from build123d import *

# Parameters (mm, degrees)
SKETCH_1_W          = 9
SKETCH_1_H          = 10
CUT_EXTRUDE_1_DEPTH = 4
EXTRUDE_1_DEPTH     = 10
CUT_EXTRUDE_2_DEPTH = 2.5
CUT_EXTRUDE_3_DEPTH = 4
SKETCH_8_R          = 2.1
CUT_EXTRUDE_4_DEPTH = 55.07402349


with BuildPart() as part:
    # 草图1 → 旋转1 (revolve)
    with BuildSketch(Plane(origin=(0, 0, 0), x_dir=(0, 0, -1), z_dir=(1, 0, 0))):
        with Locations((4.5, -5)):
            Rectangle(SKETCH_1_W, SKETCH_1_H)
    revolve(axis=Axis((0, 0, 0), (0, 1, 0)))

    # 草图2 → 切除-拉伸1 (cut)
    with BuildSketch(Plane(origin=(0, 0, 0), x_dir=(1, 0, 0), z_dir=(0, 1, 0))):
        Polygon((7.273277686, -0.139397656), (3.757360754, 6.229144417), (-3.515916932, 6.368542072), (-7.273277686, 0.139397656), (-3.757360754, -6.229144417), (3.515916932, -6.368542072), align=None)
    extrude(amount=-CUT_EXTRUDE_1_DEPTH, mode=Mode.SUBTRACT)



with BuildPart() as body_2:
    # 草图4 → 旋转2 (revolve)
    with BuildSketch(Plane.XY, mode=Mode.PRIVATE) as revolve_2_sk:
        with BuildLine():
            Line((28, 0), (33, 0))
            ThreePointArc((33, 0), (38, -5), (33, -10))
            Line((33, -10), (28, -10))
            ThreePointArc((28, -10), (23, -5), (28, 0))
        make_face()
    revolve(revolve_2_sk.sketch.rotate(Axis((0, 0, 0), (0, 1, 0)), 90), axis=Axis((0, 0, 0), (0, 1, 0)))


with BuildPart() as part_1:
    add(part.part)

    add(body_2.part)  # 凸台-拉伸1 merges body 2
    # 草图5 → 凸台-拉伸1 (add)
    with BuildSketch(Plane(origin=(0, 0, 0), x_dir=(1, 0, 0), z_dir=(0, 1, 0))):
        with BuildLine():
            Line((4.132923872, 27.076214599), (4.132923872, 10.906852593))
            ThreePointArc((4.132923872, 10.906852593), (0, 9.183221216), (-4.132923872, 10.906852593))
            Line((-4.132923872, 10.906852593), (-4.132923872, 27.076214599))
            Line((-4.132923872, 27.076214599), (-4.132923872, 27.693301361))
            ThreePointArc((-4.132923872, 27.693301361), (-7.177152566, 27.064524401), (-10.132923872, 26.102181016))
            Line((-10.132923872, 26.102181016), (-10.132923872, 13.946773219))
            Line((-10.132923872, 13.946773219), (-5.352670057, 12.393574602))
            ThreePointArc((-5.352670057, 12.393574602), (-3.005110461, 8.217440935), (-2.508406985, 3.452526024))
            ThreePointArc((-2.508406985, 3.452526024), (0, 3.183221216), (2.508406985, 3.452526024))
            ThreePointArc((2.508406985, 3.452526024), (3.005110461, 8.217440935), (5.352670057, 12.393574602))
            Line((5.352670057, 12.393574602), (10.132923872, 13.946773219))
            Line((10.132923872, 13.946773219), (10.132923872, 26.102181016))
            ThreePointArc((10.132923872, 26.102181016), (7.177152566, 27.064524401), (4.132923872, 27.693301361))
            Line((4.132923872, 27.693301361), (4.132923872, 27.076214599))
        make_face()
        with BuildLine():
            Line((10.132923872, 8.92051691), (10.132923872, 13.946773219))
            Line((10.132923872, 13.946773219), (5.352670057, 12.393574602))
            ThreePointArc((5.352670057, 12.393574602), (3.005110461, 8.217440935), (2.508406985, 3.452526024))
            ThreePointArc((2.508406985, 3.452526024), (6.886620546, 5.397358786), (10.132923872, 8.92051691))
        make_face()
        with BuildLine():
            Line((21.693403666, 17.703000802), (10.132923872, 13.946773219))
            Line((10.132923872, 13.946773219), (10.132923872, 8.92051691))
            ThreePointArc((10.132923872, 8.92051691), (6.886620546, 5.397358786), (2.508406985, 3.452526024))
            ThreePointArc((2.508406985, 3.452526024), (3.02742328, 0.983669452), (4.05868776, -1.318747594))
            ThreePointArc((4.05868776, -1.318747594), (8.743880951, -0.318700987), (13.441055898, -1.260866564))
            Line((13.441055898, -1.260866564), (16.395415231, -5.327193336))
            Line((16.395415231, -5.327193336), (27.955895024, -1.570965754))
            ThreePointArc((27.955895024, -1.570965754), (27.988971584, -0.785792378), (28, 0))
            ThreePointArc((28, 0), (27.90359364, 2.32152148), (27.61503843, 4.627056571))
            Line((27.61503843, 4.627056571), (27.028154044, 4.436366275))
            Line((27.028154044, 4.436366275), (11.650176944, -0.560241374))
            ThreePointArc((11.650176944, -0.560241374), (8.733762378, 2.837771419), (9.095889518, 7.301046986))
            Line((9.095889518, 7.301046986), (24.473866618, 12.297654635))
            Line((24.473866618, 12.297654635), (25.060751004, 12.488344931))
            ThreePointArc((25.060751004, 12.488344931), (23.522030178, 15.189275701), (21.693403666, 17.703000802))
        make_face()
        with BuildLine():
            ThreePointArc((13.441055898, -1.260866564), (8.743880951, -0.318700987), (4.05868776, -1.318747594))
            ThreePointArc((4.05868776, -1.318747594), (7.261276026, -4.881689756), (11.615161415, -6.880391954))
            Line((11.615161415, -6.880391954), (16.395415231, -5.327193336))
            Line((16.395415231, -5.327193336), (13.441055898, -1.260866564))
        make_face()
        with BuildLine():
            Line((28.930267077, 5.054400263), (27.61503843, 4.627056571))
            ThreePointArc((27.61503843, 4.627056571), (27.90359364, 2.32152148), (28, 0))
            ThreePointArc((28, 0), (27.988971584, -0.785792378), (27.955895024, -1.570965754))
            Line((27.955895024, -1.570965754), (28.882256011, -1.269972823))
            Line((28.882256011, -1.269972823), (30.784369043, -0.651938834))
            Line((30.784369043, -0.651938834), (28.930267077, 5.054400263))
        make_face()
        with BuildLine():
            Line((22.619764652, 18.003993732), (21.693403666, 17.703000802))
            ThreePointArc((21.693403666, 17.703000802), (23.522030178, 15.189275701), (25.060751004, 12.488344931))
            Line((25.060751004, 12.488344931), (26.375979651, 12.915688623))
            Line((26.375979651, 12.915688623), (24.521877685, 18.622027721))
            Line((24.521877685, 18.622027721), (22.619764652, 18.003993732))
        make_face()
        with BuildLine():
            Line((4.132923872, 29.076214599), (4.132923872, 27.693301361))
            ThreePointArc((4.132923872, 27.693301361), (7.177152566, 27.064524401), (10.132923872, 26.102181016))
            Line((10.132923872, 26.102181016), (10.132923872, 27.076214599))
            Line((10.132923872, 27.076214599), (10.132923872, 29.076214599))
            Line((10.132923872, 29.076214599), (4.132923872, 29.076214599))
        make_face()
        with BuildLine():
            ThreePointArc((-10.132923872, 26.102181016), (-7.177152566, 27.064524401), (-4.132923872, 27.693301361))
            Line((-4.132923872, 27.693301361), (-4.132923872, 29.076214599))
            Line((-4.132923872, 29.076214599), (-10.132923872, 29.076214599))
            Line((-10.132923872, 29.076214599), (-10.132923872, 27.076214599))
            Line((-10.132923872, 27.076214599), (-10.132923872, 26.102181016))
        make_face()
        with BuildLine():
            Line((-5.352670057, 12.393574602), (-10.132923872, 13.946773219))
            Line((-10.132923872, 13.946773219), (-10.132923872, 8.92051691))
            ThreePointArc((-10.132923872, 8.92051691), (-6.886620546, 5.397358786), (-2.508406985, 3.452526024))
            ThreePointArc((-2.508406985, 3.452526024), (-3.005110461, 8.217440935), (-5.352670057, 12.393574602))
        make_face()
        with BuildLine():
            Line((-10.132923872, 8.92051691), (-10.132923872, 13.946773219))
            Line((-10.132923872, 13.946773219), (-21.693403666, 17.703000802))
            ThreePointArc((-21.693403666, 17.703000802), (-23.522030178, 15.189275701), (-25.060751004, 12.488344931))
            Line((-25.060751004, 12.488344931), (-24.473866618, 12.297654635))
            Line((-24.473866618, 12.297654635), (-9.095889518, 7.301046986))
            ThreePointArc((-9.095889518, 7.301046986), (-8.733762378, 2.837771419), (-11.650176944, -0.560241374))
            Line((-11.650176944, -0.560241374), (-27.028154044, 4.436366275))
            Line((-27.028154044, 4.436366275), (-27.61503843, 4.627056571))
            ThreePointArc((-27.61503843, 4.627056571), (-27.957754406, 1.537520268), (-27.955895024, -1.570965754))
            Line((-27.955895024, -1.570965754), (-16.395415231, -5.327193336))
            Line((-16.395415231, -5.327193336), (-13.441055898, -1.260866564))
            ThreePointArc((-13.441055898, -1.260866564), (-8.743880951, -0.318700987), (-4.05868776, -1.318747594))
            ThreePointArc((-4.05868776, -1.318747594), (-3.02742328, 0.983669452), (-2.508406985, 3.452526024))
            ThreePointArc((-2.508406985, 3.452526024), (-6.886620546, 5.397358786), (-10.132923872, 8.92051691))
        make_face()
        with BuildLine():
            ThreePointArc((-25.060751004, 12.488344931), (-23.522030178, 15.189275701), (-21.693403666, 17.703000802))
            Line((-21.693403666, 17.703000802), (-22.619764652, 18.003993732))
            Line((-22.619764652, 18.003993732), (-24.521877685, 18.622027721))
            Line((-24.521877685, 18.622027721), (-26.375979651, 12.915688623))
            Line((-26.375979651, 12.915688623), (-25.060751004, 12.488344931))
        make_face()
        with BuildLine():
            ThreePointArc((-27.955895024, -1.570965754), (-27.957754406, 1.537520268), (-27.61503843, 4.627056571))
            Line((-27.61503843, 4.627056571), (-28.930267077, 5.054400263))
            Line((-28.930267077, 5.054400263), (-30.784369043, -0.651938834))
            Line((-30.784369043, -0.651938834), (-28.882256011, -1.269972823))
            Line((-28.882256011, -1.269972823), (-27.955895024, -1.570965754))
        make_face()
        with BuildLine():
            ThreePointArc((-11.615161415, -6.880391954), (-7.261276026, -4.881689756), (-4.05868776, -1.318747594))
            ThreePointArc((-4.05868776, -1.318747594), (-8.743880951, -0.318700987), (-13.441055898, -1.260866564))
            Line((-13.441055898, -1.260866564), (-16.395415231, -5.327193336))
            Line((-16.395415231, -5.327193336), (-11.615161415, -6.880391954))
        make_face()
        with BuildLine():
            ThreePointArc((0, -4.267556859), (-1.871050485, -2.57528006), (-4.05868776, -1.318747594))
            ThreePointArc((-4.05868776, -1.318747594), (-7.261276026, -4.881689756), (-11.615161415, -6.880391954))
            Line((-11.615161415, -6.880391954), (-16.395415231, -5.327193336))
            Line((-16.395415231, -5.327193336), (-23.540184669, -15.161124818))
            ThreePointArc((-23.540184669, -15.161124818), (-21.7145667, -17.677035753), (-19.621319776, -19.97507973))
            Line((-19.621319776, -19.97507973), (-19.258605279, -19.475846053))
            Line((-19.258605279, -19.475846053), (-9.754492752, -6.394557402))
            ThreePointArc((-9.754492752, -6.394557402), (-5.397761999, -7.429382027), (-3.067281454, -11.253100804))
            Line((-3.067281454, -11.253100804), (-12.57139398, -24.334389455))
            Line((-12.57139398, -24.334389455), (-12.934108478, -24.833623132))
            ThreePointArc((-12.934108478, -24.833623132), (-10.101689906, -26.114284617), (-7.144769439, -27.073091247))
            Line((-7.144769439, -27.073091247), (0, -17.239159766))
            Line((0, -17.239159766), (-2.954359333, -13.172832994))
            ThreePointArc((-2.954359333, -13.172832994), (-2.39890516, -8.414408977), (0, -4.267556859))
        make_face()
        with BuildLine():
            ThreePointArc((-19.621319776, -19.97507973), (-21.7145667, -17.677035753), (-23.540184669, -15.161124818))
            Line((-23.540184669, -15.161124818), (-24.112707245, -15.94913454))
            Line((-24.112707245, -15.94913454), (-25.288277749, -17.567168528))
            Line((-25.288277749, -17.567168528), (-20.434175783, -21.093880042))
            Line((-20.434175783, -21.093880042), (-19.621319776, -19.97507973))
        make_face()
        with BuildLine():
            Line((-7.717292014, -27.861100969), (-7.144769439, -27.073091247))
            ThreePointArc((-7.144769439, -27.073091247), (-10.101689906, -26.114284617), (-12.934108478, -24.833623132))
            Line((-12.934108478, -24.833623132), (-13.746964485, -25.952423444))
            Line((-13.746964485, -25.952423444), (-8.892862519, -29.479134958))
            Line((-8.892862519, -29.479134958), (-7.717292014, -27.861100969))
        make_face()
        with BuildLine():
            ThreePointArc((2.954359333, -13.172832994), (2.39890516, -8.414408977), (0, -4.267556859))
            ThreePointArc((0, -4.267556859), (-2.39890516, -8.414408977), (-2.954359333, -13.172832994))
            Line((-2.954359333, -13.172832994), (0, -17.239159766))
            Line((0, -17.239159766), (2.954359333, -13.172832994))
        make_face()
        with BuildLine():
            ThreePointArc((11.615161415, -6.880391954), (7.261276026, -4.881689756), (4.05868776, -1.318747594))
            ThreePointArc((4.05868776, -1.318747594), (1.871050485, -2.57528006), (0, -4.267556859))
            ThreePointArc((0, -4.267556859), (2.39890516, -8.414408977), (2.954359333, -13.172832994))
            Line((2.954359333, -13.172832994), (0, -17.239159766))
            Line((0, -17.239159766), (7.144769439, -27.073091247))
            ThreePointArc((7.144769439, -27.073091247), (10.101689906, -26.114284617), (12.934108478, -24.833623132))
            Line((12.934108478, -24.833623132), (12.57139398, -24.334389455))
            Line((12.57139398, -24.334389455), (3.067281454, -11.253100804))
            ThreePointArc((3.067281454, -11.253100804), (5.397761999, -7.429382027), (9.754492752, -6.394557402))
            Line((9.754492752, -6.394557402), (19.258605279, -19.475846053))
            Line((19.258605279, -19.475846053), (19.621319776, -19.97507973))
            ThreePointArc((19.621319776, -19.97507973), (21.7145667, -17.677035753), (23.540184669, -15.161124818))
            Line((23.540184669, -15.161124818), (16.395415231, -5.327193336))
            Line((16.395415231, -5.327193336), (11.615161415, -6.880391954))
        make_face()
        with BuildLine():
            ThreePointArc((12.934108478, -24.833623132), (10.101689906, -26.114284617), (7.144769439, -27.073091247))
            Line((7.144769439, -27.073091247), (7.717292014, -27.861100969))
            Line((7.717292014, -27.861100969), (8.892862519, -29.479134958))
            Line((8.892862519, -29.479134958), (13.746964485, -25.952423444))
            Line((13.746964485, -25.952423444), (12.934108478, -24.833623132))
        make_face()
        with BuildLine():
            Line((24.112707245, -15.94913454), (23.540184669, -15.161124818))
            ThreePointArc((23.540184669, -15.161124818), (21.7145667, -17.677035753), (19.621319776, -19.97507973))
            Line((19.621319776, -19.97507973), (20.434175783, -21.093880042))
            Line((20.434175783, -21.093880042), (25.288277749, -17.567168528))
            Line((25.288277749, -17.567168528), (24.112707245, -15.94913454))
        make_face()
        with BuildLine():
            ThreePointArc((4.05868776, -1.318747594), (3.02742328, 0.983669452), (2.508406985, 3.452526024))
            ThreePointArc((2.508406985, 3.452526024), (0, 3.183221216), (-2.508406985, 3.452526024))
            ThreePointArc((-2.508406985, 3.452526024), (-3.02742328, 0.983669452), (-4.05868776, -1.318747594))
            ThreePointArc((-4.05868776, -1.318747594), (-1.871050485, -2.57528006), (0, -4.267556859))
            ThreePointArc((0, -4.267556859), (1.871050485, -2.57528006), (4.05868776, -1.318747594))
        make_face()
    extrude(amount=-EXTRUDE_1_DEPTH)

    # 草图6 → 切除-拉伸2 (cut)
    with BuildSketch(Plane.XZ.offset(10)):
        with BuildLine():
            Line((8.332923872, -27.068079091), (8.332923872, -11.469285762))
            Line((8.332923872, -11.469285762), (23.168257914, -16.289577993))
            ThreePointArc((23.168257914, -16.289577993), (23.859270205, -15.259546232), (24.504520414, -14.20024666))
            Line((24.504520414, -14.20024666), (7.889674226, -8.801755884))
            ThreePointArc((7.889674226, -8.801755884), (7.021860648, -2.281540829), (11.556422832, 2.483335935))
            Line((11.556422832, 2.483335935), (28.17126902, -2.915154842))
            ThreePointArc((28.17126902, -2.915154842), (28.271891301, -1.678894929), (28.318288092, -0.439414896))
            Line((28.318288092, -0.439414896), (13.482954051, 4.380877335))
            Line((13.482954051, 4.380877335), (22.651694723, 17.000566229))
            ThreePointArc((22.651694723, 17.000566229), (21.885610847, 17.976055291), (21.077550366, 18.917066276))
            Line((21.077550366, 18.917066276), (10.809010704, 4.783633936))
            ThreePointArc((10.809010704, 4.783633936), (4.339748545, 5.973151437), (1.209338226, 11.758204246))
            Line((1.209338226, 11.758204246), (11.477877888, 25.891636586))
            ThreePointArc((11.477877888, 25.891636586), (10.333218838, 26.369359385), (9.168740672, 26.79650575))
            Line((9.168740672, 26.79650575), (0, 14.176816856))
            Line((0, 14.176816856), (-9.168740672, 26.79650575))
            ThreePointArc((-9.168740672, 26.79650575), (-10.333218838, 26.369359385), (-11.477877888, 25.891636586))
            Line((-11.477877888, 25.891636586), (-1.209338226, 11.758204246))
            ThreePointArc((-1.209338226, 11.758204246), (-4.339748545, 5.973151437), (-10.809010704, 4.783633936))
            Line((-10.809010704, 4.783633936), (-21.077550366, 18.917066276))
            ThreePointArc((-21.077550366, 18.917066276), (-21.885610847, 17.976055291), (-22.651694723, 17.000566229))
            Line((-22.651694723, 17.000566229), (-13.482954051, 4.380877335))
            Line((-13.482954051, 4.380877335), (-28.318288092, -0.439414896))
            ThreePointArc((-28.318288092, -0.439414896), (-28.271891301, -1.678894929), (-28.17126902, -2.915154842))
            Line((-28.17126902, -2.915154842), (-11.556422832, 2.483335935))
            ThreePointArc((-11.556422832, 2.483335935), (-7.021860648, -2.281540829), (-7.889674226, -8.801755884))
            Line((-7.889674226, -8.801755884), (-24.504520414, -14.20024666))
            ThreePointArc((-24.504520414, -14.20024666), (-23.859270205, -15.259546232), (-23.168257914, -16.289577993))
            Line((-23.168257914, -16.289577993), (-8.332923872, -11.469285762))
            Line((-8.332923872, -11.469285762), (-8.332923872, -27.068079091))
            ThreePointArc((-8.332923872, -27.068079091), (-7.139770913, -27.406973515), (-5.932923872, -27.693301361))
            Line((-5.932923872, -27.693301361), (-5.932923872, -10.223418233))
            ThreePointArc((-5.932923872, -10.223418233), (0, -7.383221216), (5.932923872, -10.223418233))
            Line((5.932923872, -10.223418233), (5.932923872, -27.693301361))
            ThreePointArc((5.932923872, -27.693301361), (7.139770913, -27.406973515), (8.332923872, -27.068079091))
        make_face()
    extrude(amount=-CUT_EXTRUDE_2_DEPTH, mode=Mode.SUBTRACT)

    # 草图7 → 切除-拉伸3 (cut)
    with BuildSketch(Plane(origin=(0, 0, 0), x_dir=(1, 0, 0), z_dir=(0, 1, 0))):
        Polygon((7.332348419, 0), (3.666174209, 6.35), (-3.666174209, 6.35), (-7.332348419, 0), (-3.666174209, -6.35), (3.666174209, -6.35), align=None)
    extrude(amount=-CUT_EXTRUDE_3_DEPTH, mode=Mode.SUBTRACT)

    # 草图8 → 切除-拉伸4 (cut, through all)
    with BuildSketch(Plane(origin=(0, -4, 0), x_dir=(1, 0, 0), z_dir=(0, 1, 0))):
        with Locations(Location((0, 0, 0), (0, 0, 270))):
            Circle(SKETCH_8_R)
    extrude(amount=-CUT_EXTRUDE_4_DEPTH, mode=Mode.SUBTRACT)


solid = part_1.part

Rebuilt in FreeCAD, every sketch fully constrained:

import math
import FreeCAD as App
import Part
import Sketcher
from FreeCAD import Vector
Q = App.Units.Quantity

doc = App.newDocument("Part")
body = doc.addObject("PartDesign::Body", "Body")

sketch1 = body.newObject("Sketcher::SketchObject", "Sketch")
sketch1.AttachmentSupport = (doc.getObject("YZ_Plane"), [""])
sketch1.MapMode = "FlatFace"
sketch1.addGeometry([
    Part.LineSegment(Vector(0, 0, 0), Vector(-10, 0, 0)),
    Part.LineSegment(Vector(-10, 0, 0), Vector(-10, -9, 0)),
    Part.LineSegment(Vector(-10, -9, 0), Vector(0, -9, 0)),
    Part.LineSegment(Vector(0, -9, 0), Vector(0, 0, 0)),
], False)
sketch1.addConstraint([
    Sketcher.Constraint("Coincident", 0, 2, 1, 1),
    Sketcher.Constraint("Coincident", 1, 2, 2, 1),
    Sketcher.Constraint("Coincident", 2, 2, 3, 1),
    Sketcher.Constraint("Coincident", 3, 2, 0, 1),
    Sketcher.Constraint("Horizontal", 0),
    Sketcher.Constraint("Vertical", 1),
    Sketcher.Constraint("Horizontal", 2),
    Sketcher.Constraint("Vertical", 3),
    Sketcher.Constraint("Coincident", 3, 2, -1, 1),
    Sketcher.Constraint("DistanceX", 0, 2, 0, 1, 10.0),
    Sketcher.Constraint("DistanceY", 1, 2, 1, 1, 9.0),
])
revolution = body.newObject("PartDesign::Revolution", "Revolution")
revolution.Profile = sketch1
revolution.ReferenceAxis = (sketch1, ["H_Axis"])
revolution.Angle = 360

sketch2 = body.newObject("Sketcher::SketchObject", "Sketch001")
sketch2.AttachmentSupport = (doc.getObject("XZ_Plane"), [""])
sketch2.MapMode = "FlatFace"
sketch2.addGeometry([
    Part.LineSegment(Vector(7, 0, 0), Vector(4, -6, 0)),
    Part.LineSegment(Vector(4, -6, 0), Vector(-4, -6, 0)),
    Part.LineSegment(Vector(-4, -6, 0), Vector(-7, 0, 0)),
    Part.LineSegment(Vector(-7, 0, 0), Vector(-4, 6, 0)),
    Part.LineSegment(Vector(-4, 6, 0), Vector(4, 6, 0)),
    Part.LineSegment(Vector(4, 6, 0), Vector(7, 0, 0)),
], False)
sketch2.addConstraint([
    Sketcher.Constraint("Coincident", 0, 2, 1, 1),
    Sketcher.Constraint("Coincident", 1, 2, 2, 1),
    Sketcher.Constraint("Coincident", 2, 2, 3, 1),
    Sketcher.Constraint("Coincident", 3, 2, 4, 1),
    Sketcher.Constraint("Coincident", 4, 2, 5, 1),
    Sketcher.Constraint("Coincident", 5, 2, 0, 1),
    Sketcher.Constraint("Symmetric", 0, 2, 3, 2, -1, 1),
    Sketcher.Constraint("Symmetric", 1, 2, 4, 2, -1, 1),
    Sketcher.Constraint("Symmetric", 2, 2, 5, 2, -1, 1),
    Sketcher.Constraint("Equal", 0, 1),
    Sketcher.Constraint("Equal", 1, 2),
    Sketcher.Constraint("DistanceX", -1, 1, 0, 2, 3.757361),
    Sketcher.Constraint("DistanceX", 2, 2, 1, 2, 3.757361),
    Sketcher.Constraint("DistanceX", 2, 2, 0, 2, 11.030638),
    Sketcher.Constraint("DistanceY", 0, 2, 3, 2, 12.458289),
])
pocket1 = body.newObject("PartDesign::Pocket", "Pocket")
pocket1.Profile = sketch2
pocket1.Length = 4
pocket1.Reversed = True
body2 = doc.addObject("PartDesign::Body", "Body001")

sketch3 = body2.newObject("Sketcher::SketchObject", "Sketch002")
sketch3.AttachmentSupport = (doc.getObject("XY_Plane001"), [""])
sketch3.MapMode = "FlatFace"
sketch3.addGeometry([
    Part.LineSegment(Vector(33, 0, 0), Vector(28, 0, 0)),
    Part.ArcOfCircle(Part.Circle(Vector(28, -5, 0), Vector(0, 0, 1), 5), math.radians(90), math.radians(270)),
    Part.LineSegment(Vector(28, -10, 0), Vector(33, -10, 0)),
    Part.ArcOfCircle(Part.Circle(Vector(33, -5, 0), Vector(0, 0, 1), 5), math.radians(-90), math.radians(90)),
], False)
sketch3.addConstraint([
    Sketcher.Constraint("Tangent", 0, 2, 1, 1),
    Sketcher.Constraint("Tangent", 1, 2, 2, 1),
    Sketcher.Constraint("Tangent", 2, 2, 3, 1),
    Sketcher.Constraint("Tangent", 3, 2, 0, 1),
    Sketcher.Constraint("Horizontal", 0),
    Sketcher.Constraint("Horizontal", 2),
    Sketcher.Constraint("PointOnObject", 0, 2, -1),
    Sketcher.Constraint("Radius", 1, 5.0),
    Sketcher.Constraint("DistanceX", 0, 2, 0, 1, 5.0),
    Sketcher.Constraint("DistanceX", -1, 1, 1, 3, 28.0),
])
revolution2 = body2.newObject("PartDesign::Revolution", "Revolution001")
revolution2.Profile = sketch3
revolution2.ReferenceAxis = (sketch3, ["V_Axis"])
revolution2.Angle = 360
body.AllowCompound = True
doc.recompute()

boolean = body.newObject("PartDesign::Boolean", "Boolean")
boolean.Type = "Fuse"
boolean.addObjects([body2])

sketch4 = body.newObject("Sketcher::SketchObject", "Sketch003")
sketch4.AttachmentSupport = (doc.getObject("XZ_Plane"), [""])
sketch4.MapMode = "FlatFace"
sketch4.addGeometry([
    Part.ArcOfCircle(Part.Circle(Vector(0, -15, 0), Vector(0, 0, 1), 5.8), math.radians(45), math.radians(135)),
    Part.LineSegment(Vector(-4.1, -10.9, 0), Vector(-4.1, -29.1, 0)),
    Part.LineSegment(Vector(-4.1, -29.1, 0), Vector(-10.1, -29.1, 0)),
    Part.LineSegment(Vector(-10.1, -29.1, 0), Vector(-10.1, -13.9, 0)),
    Part.LineSegment(Vector(-10.1, -13.9, 0), Vector(-21.7, -17.7, 0)),
    Part.LineSegment(Vector(-21.7, -17.7, 0), Vector(-22.6, -18, 0)),
    Part.LineSegment(Vector(-22.6, -18, 0), Vector(-24.5, -18.6, 0)),
    Part.LineSegment(Vector(-24.5, -18.6, 0), Vector(-26.4, -12.9, 0)),
    Part.LineSegment(Vector(-26.4, -12.9, 0), Vector(-25.1, -12.5, 0)),
    Part.LineSegment(Vector(-25.1, -12.5, 0), Vector(-24.5, -12.3, 0)),
    Part.LineSegment(Vector(-24.5, -12.3, 0), Vector(-9.1, -7.3, 0)),
    Part.ArcOfCircle(Part.Circle(Vector(-14.3, -4.6, 0), Vector(0, 0, 1), 5.8), math.radians(-27), math.radians(63)),
    Part.LineSegment(Vector(-11.7, 0.6, 0), Vector(-27, -4.4, 0)),
    Part.LineSegment(Vector(-27, -4.4, 0), Vector(-27.6, -4.6, 0)),
    Part.LineSegment(Vector(-27.6, -4.6, 0), Vector(-28.9, -5.1, 0)),
    Part.LineSegment(Vector(-28.9, -5.1, 0), Vector(-30.8, 0.7, 0)),
    Part.LineSegment(Vector(-30.8, 0.7, 0), Vector(-28.9, 1.3, 0)),
    Part.LineSegment(Vector(-28.9, 1.3, 0), Vector(-28, 1.6, 0)),
    Part.LineSegment(Vector(-28, 1.6, 0), Vector(-16.4, 5.3, 0)),
    Part.LineSegment(Vector(-16.4, 5.3, 0), Vector(-23.5, 15.2, 0)),
    Part.LineSegment(Vector(-23.5, 15.2, 0), Vector(-24.1, 15.9, 0)),
    Part.LineSegment(Vector(-24.1, 15.9, 0), Vector(-25.3, 17.6, 0)),
    Part.LineSegment(Vector(-25.3, 17.6, 0), Vector(-20.4, 21.1, 0)),
    Part.LineSegment(Vector(-20.4, 21.1, 0), Vector(-19.6, 20, 0)),
    Part.LineSegment(Vector(-19.6, 20, 0), Vector(-19.3, 19.5, 0)),
    Part.LineSegment(Vector(-19.3, 19.5, 0), Vector(-9.8, 6.4, 0)),
    Part.ArcOfCircle(Part.Circle(Vector(-8.8, 12.1, 0), Vector(0, 0, 1), 5.8), math.radians(-99), math.radians(-9)),
    Part.LineSegment(Vector(-3.1, 11.3, 0), Vector(-12.6, 24.3, 0)),
    Part.LineSegment(Vector(-12.6, 24.3, 0), Vector(-12.9, 24.8, 0)),
    Part.LineSegment(Vector(-12.9, 24.8, 0), Vector(-13.7, 26, 0)),
    Part.LineSegment(Vector(-13.7, 26, 0), Vector(-8.9, 29.5, 0)),
    Part.LineSegment(Vector(-8.9, 29.5, 0), Vector(-7.7, 27.9, 0)),
    Part.LineSegment(Vector(-7.7, 27.9, 0), Vector(-7.1, 27.1, 0)),
    Part.LineSegment(Vector(-7.1, 27.1, 0), Vector(0, 17.2, 0)),
    Part.LineSegment(Vector(0, 17.2, 0), Vector(7.1, 27.1, 0)),
    Part.LineSegment(Vector(7.1, 27.1, 0), Vector(7.7, 27.9, 0)),
    Part.LineSegment(Vector(7.7, 27.9, 0), Vector(8.9, 29.5, 0)),
    Part.LineSegment(Vector(8.9, 29.5, 0), Vector(13.7, 26, 0)),
    Part.LineSegment(Vector(13.7, 26, 0), Vector(12.9, 24.8, 0)),
    Part.LineSegment(Vector(12.9, 24.8, 0), Vector(12.6, 24.3, 0)),
    Part.LineSegment(Vector(12.6, 24.3, 0), Vector(3.1, 11.3, 0)),
    Part.ArcOfCircle(Part.Circle(Vector(8.8, 12.1, 0), Vector(0, 0, 1), 5.8), math.radians(-171), math.radians(-81)),
    Part.LineSegment(Vector(9.8, 6.4, 0), Vector(19.3, 19.5, 0)),
    Part.LineSegment(Vector(19.3, 19.5, 0), Vector(19.6, 20, 0)),
    Part.LineSegment(Vector(19.6, 20, 0), Vector(20.4, 21.1, 0)),
    Part.LineSegment(Vector(20.4, 21.1, 0), Vector(25.3, 17.6, 0)),
    Part.LineSegment(Vector(25.3, 17.6, 0), Vector(24.1, 15.9, 0)),
    Part.LineSegment(Vector(24.1, 15.9, 0), Vector(23.5, 15.2, 0)),
    Part.LineSegment(Vector(23.5, 15.2, 0), Vector(16.4, 5.3, 0)),
    Part.LineSegment(Vector(16.4, 5.3, 0), Vector(28, 1.6, 0)),
    Part.LineSegment(Vector(28, 1.6, 0), Vector(28.9, 1.3, 0)),
    Part.LineSegment(Vector(28.9, 1.3, 0), Vector(30.8, 0.7, 0)),
    Part.LineSegment(Vector(30.8, 0.7, 0), Vector(28.9, -5.1, 0)),
    Part.LineSegment(Vector(28.9, -5.1, 0), Vector(27.6, -4.6, 0)),
    Part.LineSegment(Vector(27.6, -4.6, 0), Vector(27, -4.4, 0)),
    Part.LineSegment(Vector(27, -4.4, 0), Vector(11.7, 0.6, 0)),
    Part.ArcOfCircle(Part.Circle(Vector(14.3, -4.6, 0), Vector(0, 0, 1), 5.8), math.radians(117), math.radians(207)),
    Part.LineSegment(Vector(9.1, -7.3, 0), Vector(24.5, -12.3, 0)),
    Part.LineSegment(Vector(24.5, -12.3, 0), Vector(25.1, -12.5, 0)),
    Part.LineSegment(Vector(25.1, -12.5, 0), Vector(26.4, -12.9, 0)),
    Part.LineSegment(Vector(26.4, -12.9, 0), Vector(24.5, -18.6, 0)),
    Part.LineSegment(Vector(24.5, -18.6, 0), Vector(22.6, -18, 0)),
    Part.LineSegment(Vector(22.6, -18, 0), Vector(21.7, -17.7, 0)),
    Part.LineSegment(Vector(21.7, -17.7, 0), Vector(10.1, -13.9, 0)),
    Part.LineSegment(Vector(10.1, -13.9, 0), Vector(10.1, -29.1, 0)),
    Part.LineSegment(Vector(10.1, -29.1, 0), Vector(4.1, -29.1, 0)),
    Part.LineSegment(Vector(4.1, -29.1, 0), Vector(4.1, -10.9, 0)),
], False)
sketch4.addConstraint([
    Sketcher.Constraint("Coincident", 0, 2, 1, 1),
    Sketcher.Constraint("Coincident", 1, 2, 2, 1),
    Sketcher.Constraint("Coincident", 2, 2, 3, 1),
    Sketcher.Constraint("Coincident", 3, 2, 4, 1),
    Sketcher.Constraint("Coincident", 4, 2, 5, 1),
    Sketcher.Constraint("Coincident", 5, 2, 6, 1),
    Sketcher.Constraint("Coincident", 6, 2, 7, 1),
    Sketcher.Constraint("Coincident", 7, 2, 8, 1),
    Sketcher.Constraint("Coincident", 8, 2, 9, 1),
    Sketcher.Constraint("Coincident", 9, 2, 10, 1),
    Sketcher.Constraint("Coincident", 10, 2, 11, 1),
    Sketcher.Constraint("Coincident", 11, 2, 12, 1),
    Sketcher.Constraint("Coincident", 12, 2, 13, 1),
    Sketcher.Constraint("Coincident", 13, 2, 14, 1),
    Sketcher.Constraint("Coincident", 14, 2, 15, 1),
    Sketcher.Constraint("Coincident", 15, 2, 16, 1),
    Sketcher.Constraint("Coincident", 16, 2, 17, 1),
    Sketcher.Constraint("Coincident", 17, 2, 18, 1),
    Sketcher.Constraint("Coincident", 18, 2, 19, 1),
    Sketcher.Constraint("Coincident", 19, 2, 20, 1),
    Sketcher.Constraint("Coincident", 20, 2, 21, 1),
    Sketcher.Constraint("Coincident", 21, 2, 22, 1),
    Sketcher.Constraint("Coincident", 22, 2, 23, 1),
    Sketcher.Constraint("Coincident", 23, 2, 24, 1),
    Sketcher.Constraint("Coincident", 24, 2, 25, 1),
    Sketcher.Constraint("Coincident", 25, 2, 26, 1),
    Sketcher.Constraint("Coincident", 26, 2, 27, 1),
    Sketcher.Constraint("Coincident", 27, 2, 28, 1),
    Sketcher.Constraint("Coincident", 28, 2, 29, 1),
    Sketcher.Constraint("Coincident", 29, 2, 30, 1),
    Sketcher.Constraint("Coincident", 30, 2, 31, 1),
    Sketcher.Constraint("Coincident", 31, 2, 32, 1),
    Sketcher.Constraint("Coincident", 32, 2, 33, 1),
    Sketcher.Constraint("Coincident", 33, 2, 34, 1),
    Sketcher.Constraint("Coincident", 34, 2, 35, 1),
    Sketcher.Constraint("Coincident", 35, 2, 36, 1),
    Sketcher.Constraint("Coincident", 36, 2, 37, 1),
    Sketcher.Constraint("Coincident", 37, 2, 38, 1),
    Sketcher.Constraint("Coincident", 38, 2, 39, 1),
    Sketcher.Constraint("Coincident", 39, 2, 40, 1),
    Sketcher.Constraint("Coincident", 40, 2, 41, 1),
    Sketcher.Constraint("Coincident", 41, 2, 42, 1),
    Sketcher.Constraint("Coincident", 42, 2, 43, 1),
    Sketcher.Constraint("Coincident", 43, 2, 44, 1),
    Sketcher.Constraint("Coincident", 44, 2, 45, 1),
    Sketcher.Constraint("Coincident", 45, 2, 46, 1),
    Sketcher.Constraint("Coincident", 46, 2, 47, 1),
    Sketcher.Constraint("Coincident", 47, 2, 48, 1),
    Sketcher.Constraint("Coincident", 48, 2, 49, 1),
    Sketcher.Constraint("Coincident", 49, 2, 50, 1),
    Sketcher.Constraint("Coincident", 50, 2, 51, 1),
    Sketcher.Constraint("Coincident", 51, 2, 52, 1),
    Sketcher.Constraint("Coincident", 52, 2, 53, 1),
    Sketcher.Constraint("Coincident", 53, 2, 54, 1),
    Sketcher.Constraint("Coincident", 54, 2, 55, 1),
    Sketcher.Constraint("Coincident", 55, 2, 56, 1),
    Sketcher.Constraint("Coincident", 56, 2, 57, 1),
    Sketcher.Constraint("Coincident", 57, 2, 58, 1),
    Sketcher.Constraint("Coincident", 58, 2, 59, 1),
    Sketcher.Constraint("Coincident", 59, 2, 60, 1),
    Sketcher.Constraint("Coincident", 60, 2, 61, 1),
    Sketcher.Constraint("Coincident", 61, 2, 62, 1),
    Sketcher.Constraint("Coincident", 62, 2, 63, 1),
    Sketcher.Constraint("Coincident", 63, 2, 64, 1),
    Sketcher.Constraint("Coincident", 64, 2, 65, 1),
    Sketcher.Constraint("Coincident", 65, 2, 66, 1),
    Sketcher.Constraint("Coincident", 66, 2, 0, 1),
    Sketcher.Constraint("Vertical", 1),
    Sketcher.Constraint("Horizontal", 2),
    Sketcher.Constraint("Vertical", 3),
    Sketcher.Constraint("Vertical", 64),
    Sketcher.Constraint("Horizontal", 65),
    Sketcher.Constraint("Vertical", 66),
    Sketcher.Constraint("Equal", 0, 11),
    Sketcher.Constraint("Equal", 11, 26),
    Sketcher.Constraint("Equal", 26, 41),
    Sketcher.Constraint("Equal", 41, 56),
    Sketcher.Constraint("Symmetric", 26, 3, 41, 3, -2),
    Sketcher.Constraint("Symmetric", 11, 3, 56, 3, -2),
    Sketcher.Constraint("Symmetric", 32, 2, 34, 2, -2),
    Sketcher.Constraint("Symmetric", 31, 2, 35, 2, -2),
    Sketcher.Constraint("Symmetric", 30, 2, 36, 2, -2),
    Sketcher.Constraint("Symmetric", 29, 2, 37, 2, -2),
    Sketcher.Constraint("Symmetric", 28, 2, 38, 2, -2),
    Sketcher.Constraint("Symmetric", 27, 2, 39, 2, -2),
    Sketcher.Constraint("Symmetric", 24, 2, 42, 2, -2),
    Sketcher.Constraint("Symmetric", 23, 2, 43, 2, -2),
    Sketcher.Constraint("Symmetric", 22, 2, 44, 2, -2),
    Sketcher.Constraint("Symmetric", 21, 2, 45, 2, -2),
    Sketcher.Constraint("Symmetric", 20, 2, 46, 2, -2),
    Sketcher.Constraint("Symmetric", 19, 2, 47, 2, -2),
    Sketcher.Constraint("Symmetric", 18, 2, 48, 2, -2),
    Sketcher.Constraint("Symmetric", 17, 2, 49, 2, -2),
    Sketcher.Constraint("Symmetric", 16, 2, 50, 2, -2),
    Sketcher.Constraint("Symmetric", 15, 2, 51, 2, -2),
    Sketcher.Constraint("Symmetric", 14, 2, 52, 2, -2),
    Sketcher.Constraint("Symmetric", 13, 2, 53, 2, -2),
    Sketcher.Constraint("Symmetric", 12, 2, 54, 2, -2),
    Sketcher.Constraint("Symmetric", 9, 2, 57, 2, -2),
    Sketcher.Constraint("Symmetric", 8, 2, 58, 2, -2),
    Sketcher.Constraint("Symmetric", 7, 2, 59, 2, -2),
    Sketcher.Constraint("Symmetric", 6, 2, 60, 2, -2),
    Sketcher.Constraint("Symmetric", 5, 2, 61, 2, -2),
    Sketcher.Constraint("Symmetric", 4, 2, 62, 2, -2),
    Sketcher.Constraint("Symmetric", 3, 2, 63, 2, -2),
    Sketcher.Constraint("Symmetric", 1, 2, 65, 2, -2),
    Sketcher.Constraint("PointOnObject", 0, 3, -2),
    Sketcher.Constraint("PointOnObject", 33, 2, -2),
    Sketcher.Constraint("Parallel", 4, 5),
    Sketcher.Constraint("Parallel", 5, 6),
    Sketcher.Constraint("Perpendicular", 6, 7),
    Sketcher.Constraint("Perpendicular", 7, 8),
    Sketcher.Constraint("Parallel", 8, 9),
    Sketcher.Constraint("Parallel", 9, 10),
    Sketcher.Constraint("Parallel", 10, 12),
    Sketcher.Constraint("Parallel", 12, 13),
    Sketcher.Constraint("Parallel", 13, 14),
    Sketcher.Constraint("Perpendicular", 14, 15),
    Sketcher.Constraint("Perpendicular", 15, 16),
    Sketcher.Constraint("Parallel", 16, 17),
    Sketcher.Constraint("Parallel", 17, 18),
    Sketcher.Constraint("Parallel", 19, 20),
    Sketcher.Constraint("Parallel", 20, 21),
    Sketcher.Constraint("Perpendicular", 21, 22),
    Sketcher.Constraint("Perpendicular", 22, 23),
    Sketcher.Constraint("Parallel", 23, 24),
    Sketcher.Constraint("Parallel", 24, 25),
    Sketcher.Constraint("Parallel", 25, 27),
    Sketcher.Constraint("Parallel", 27, 28),
    Sketcher.Constraint("Parallel", 28, 29),
    Sketcher.Constraint("Perpendicular", 29, 30),
    Sketcher.Constraint("Perpendicular", 30, 31),
    Sketcher.Constraint("Parallel", 31, 32),
    Sketcher.Constraint("Parallel", 32, 33),
    Sketcher.Constraint("Parallel", 39, 40),
    Sketcher.Constraint("Parallel", 40, 42),
    Sketcher.Constraint("Parallel", 54, 55),
    Sketcher.Constraint("Parallel", 55, 57),
    Sketcher.Constraint("Equal", 10, 12),
    Sketcher.Constraint("Equal", 9, 13),
    Sketcher.Constraint("Equal", 8, 14),
    Sketcher.Constraint("Equal", 7, 15),
    Sketcher.Constraint("Equal", 6, 16),
    Sketcher.Constraint("Equal", 5, 17),
    Sketcher.Constraint("Equal", 4, 18),
    Sketcher.Constraint("Equal", 18, 19),
    Sketcher.Constraint("Equal", 17, 20),
    Sketcher.Constraint("Equal", 16, 21),
    Sketcher.Constraint("Equal", 15, 22),
    Sketcher.Constraint("Equal", 14, 23),
    Sketcher.Constraint("Equal", 13, 24),
    Sketcher.Constraint("Equal", 12, 25),
    Sketcher.Constraint("Equal", 25, 27),
    Sketcher.Constraint("Equal", 24, 28),
    Sketcher.Constraint("Equal", 23, 29),
    Sketcher.Constraint("Equal", 22, 30),
    Sketcher.Constraint("Equal", 21, 31),
    Sketcher.Constraint("Equal", 20, 32),
    Sketcher.Constraint("Equal", 19, 33),
    Sketcher.Constraint("DistanceX", 2, 2, 2, 1, 6.0),
    Sketcher.Constraint("Angle", 4, Q("-162 deg")),
    Sketcher.Constraint("Angle", 19, Q("126 deg")),
    Sketcher.Constraint("Distance", 6, 2.0),
    Sketcher.Constraint("Distance", 7, 6.0),
    Sketcher.Constraint("DistanceY", 0, 3, -1, 1, 15.0),
    Sketcher.Constraint("Radius", 0, 5.816779),
    Sketcher.Constraint("DistanceY", 4, 2, -1, 1, 17.703001),
    Sketcher.Constraint("DistanceY", 3, 1, 3, 2, 15.129441),
    Sketcher.Constraint("DistanceY", 14, 2, -1, 1, 5.0544),
    Sketcher.Constraint("DistanceY", -1, 1, 26, 2, 11.253101),
    Sketcher.Constraint("DistanceY", -1, 1, 31, 2, 27.861101),
    Sketcher.Constraint("DistanceY", 1, 2, 1, 1, 18.169362),
    Sketcher.Constraint("DistanceX", 26, 3, -1, 1, 8.816779),
    Sketcher.Constraint("DistanceX", 7, 2, -1, 1, 26.37598),
    Sketcher.Constraint("DistanceY", 7, 2, -1, 1, 12.915689),
    Sketcher.Constraint("DistanceX", 8, 2, -1, 1, 25.060751),
    Sketcher.Constraint("DistanceY", -1, 1, 27, 2, 24.334389),
])
pad1 = body.newObject("PartDesign::Pad", "Pad")
pad1.Profile = sketch4
pad1.Length = 10

sketch5 = body.newObject("Sketcher::SketchObject", "Sketch004")
sketch5.AttachmentSupport = (doc.getObject("XZ_Plane"), [""])
sketch5.MapMode = "FlatFace"
sketch5.AttachmentOffset = App.Placement(Vector(0, 0, 10), App.Rotation())
sketch5.addGeometry([
    Part.LineSegment(Vector(8.3, -27.1, 0), Vector(8.3, -11.5, 0)),
    Part.LineSegment(Vector(8.3, -11.5, 0), Vector(23.2, -16.3, 0)),
    Part.ArcOfCircle(Part.Circle(Vector(0, 0, 0), Vector(0, 0, 1), 28.3), math.radians(-35.11), math.radians(-30.09)),
    Part.LineSegment(Vector(24.5, -14.2, 0), Vector(7.9, -8.8, 0)),
    Part.ArcOfCircle(Part.Circle(Vector(14.3, -4.6, 0), Vector(0, 0, 1), 7.6), math.radians(111), math.radians(213)),
    Part.LineSegment(Vector(11.6, 2.5, 0), Vector(28.2, -2.9, 0)),
    Part.ArcOfCircle(Part.Circle(Vector(0, 0, 0), Vector(0, 0, 1), 28.3), math.radians(-5.91), math.radians(-0.89)),
    Part.LineSegment(Vector(28.3, -0.4, 0), Vector(13.5, 4.4, 0)),
    Part.LineSegment(Vector(13.5, 4.4, 0), Vector(22.7, 17, 0)),
    Part.ArcOfCircle(Part.Circle(Vector(0, 0, 0), Vector(0, 0, 1), 28.3), math.radians(36.89), math.radians(41.91)),
    Part.LineSegment(Vector(21.1, 18.9, 0), Vector(10.8, 4.8, 0)),
    Part.ArcOfCircle(Part.Circle(Vector(8.8, 12.1, 0), Vector(0, 0, 1), 7.6), math.radians(-177), math.radians(-75)),
    Part.LineSegment(Vector(1.2, 11.8, 0), Vector(11.5, 25.9, 0)),
    Part.ArcOfCircle(Part.Circle(Vector(0, 0, 0), Vector(0, 0, 1), 28.3), math.radians(66.09), math.radians(71.11)),
    Part.LineSegment(Vector(9.2, 26.8, 0), Vector(0, 14.2, 0)),
    Part.LineSegment(Vector(0, 14.2, 0), Vector(-9.2, 26.8, 0)),
    Part.ArcOfCircle(Part.Circle(Vector(0, 0, 0), Vector(0, 0, 1), 28.3), math.radians(108.89), math.radians(113.91)),
    Part.LineSegment(Vector(-11.5, 25.9, 0), Vector(-1.2, 11.8, 0)),
    Part.ArcOfCircle(Part.Circle(Vector(-8.8, 12.1, 0), Vector(0, 0, 1), 7.6), math.radians(-105), math.radians(-3)),
    Part.LineSegment(Vector(-10.8, 4.8, 0), Vector(-21.1, 18.9, 0)),
    Part.ArcOfCircle(Part.Circle(Vector(0, 0, 0), Vector(0, 0, 1), 28.3), math.radians(138.09), math.radians(143.11)),
    Part.LineSegment(Vector(-22.7, 17, 0), Vector(-13.5, 4.4, 0)),
    Part.LineSegment(Vector(-13.5, 4.4, 0), Vector(-28.3, -0.4, 0)),
    Part.ArcOfCircle(Part.Circle(Vector(0, 0, 0), Vector(0, 0, 1), 28.3), math.radians(-179.11), math.radians(-174.09)),
    Part.LineSegment(Vector(-28.2, -2.9, 0), Vector(-11.6, 2.5, 0)),
    Part.ArcOfCircle(Part.Circle(Vector(-14.3, -4.6, 0), Vector(0, 0, 1), 7.6), math.radians(-33), math.radians(69)),
    Part.LineSegment(Vector(-7.9, -8.8, 0), Vector(-24.5, -14.2, 0)),
    Part.ArcOfCircle(Part.Circle(Vector(0, 0, 0), Vector(0, 0, 1), 28.3), math.radians(-149.91), math.radians(-144.89)),
    Part.LineSegment(Vector(-23.2, -16.3, 0), Vector(-8.3, -11.5, 0)),
    Part.LineSegment(Vector(-8.3, -11.5, 0), Vector(-8.3, -27.1, 0)),
    Part.ArcOfCircle(Part.Circle(Vector(0, 0, 0), Vector(0, 0, 1), 28.3), math.radians(-107.11), math.radians(-102.09)),
    Part.LineSegment(Vector(-5.9, -27.7, 0), Vector(-5.9, -10.2, 0)),
    Part.ArcOfCircle(Part.Circle(Vector(0, -15, 0), Vector(0, 0, 1), 7.6), math.radians(39), math.radians(141)),
    Part.LineSegment(Vector(5.9, -10.2, 0), Vector(5.9, -27.7, 0)),
    Part.ArcOfCircle(Part.Circle(Vector(0, 0, 0), Vector(0, 0, 1), 28.3), math.radians(-77.91), math.radians(-72.89)),
], False)
sketch5.addConstraint([
    Sketcher.Constraint("Coincident", 0, 2, 1, 1),
    Sketcher.Constraint("Coincident", 1, 2, 2, 1),
    Sketcher.Constraint("Coincident", 2, 2, 3, 1),
    Sketcher.Constraint("Coincident", 3, 2, 4, 2),
    Sketcher.Constraint("Coincident", 4, 1, 5, 1),
    Sketcher.Constraint("Coincident", 5, 2, 6, 1),
    Sketcher.Constraint("Coincident", 6, 2, 7, 1),
    Sketcher.Constraint("Coincident", 7, 2, 8, 1),
    Sketcher.Constraint("Coincident", 8, 2, 9, 1),
    Sketcher.Constraint("Coincident", 9, 2, 10, 1),
    Sketcher.Constraint("Coincident", 10, 2, 11, 2),
    Sketcher.Constraint("Coincident", 11, 1, 12, 1),
    Sketcher.Constraint("Coincident", 12, 2, 13, 1),
    Sketcher.Constraint("Coincident", 13, 2, 14, 1),
    Sketcher.Constraint("Coincident", 14, 2, 15, 1),
    Sketcher.Constraint("Coincident", 15, 2, 16, 1),
    Sketcher.Constraint("Coincident", 16, 2, 17, 1),
    Sketcher.Constraint("Coincident", 17, 2, 18, 2),
    Sketcher.Constraint("Coincident", 18, 1, 19, 1),
    Sketcher.Constraint("Coincident", 19, 2, 20, 1),
    Sketcher.Constraint("Coincident", 20, 2, 21, 1),
    Sketcher.Constraint("Coincident", 21, 2, 22, 1),
    Sketcher.Constraint("Coincident", 22, 2, 23, 1),
    Sketcher.Constraint("Coincident", 23, 2, 24, 1),
    Sketcher.Constraint("Coincident", 24, 2, 25, 2),
    Sketcher.Constraint("Coincident", 25, 1, 26, 1),
    Sketcher.Constraint("Coincident", 26, 2, 27, 1),
    Sketcher.Constraint("Coincident", 27, 2, 28, 1),
    Sketcher.Constraint("Coincident", 28, 2, 29, 1),
    Sketcher.Constraint("Coincident", 29, 2, 30, 1),
    Sketcher.Constraint("Coincident", 30, 2, 31, 1),
    Sketcher.Constraint("Coincident", 31, 2, 32, 2),
    Sketcher.Constraint("Coincident", 32, 1, 33, 1),
    Sketcher.Constraint("Coincident", 33, 2, 34, 1),
    Sketcher.Constraint("Coincident", 34, 2, 0, 1),
    Sketcher.Constraint("Vertical", 0),
    Sketcher.Constraint("Vertical", 29),
    Sketcher.Constraint("Vertical", 31),
    Sketcher.Constraint("Vertical", 33),
    Sketcher.Constraint("Coincident", 2, 3, -1, 1),
    Sketcher.Constraint("Coincident", 6, 3, -1, 1),
    Sketcher.Constraint("Coincident", 9, 3, -1, 1),
    Sketcher.Constraint("Coincident", 13, 3, -1, 1),
    Sketcher.Constraint("Coincident", 16, 3, -1, 1),
    Sketcher.Constraint("Coincident", 20, 3, -1, 1),
    Sketcher.Constraint("Coincident", 23, 3, -1, 1),
    Sketcher.Constraint("Coincident", 27, 3, -1, 1),
    Sketcher.Constraint("Coincident", 30, 3, -1, 1),
    Sketcher.Constraint("Coincident", 34, 3, -1, 1),
    Sketcher.Constraint("Equal", 2, 6),
    Sketcher.Constraint("Equal", 6, 9),
    Sketcher.Constraint("Equal", 4, 11),
    Sketcher.Constraint("Equal", 9, 13),
    Sketcher.Constraint("Equal", 13, 16),
    Sketcher.Constraint("Equal", 11, 18),
    Sketcher.Constraint("Equal", 16, 20),
    Sketcher.Constraint("Equal", 20, 23),
    Sketcher.Constraint("Equal", 18, 25),
    Sketcher.Constraint("Equal", 23, 27),
    Sketcher.Constraint("Equal", 27, 30),
    Sketcher.Constraint("Equal", 25, 32),
    Sketcher.Constraint("Equal", 30, 34),
    Sketcher.Constraint("Symmetric", 11, 3, 18, 3, -2),
    Sketcher.Constraint("Symmetric", 4, 3, 25, 3, -2),
    Sketcher.Constraint("Symmetric", 7, 2, 21, 2, -2),
    Sketcher.Constraint("Symmetric", 0, 2, 28, 2, -2),
    Sketcher.Constraint("Symmetric", 31, 2, 32, 1, -2),
    Sketcher.Constraint("PointOnObject", 14, 2, -2),
    Sketcher.Constraint("Parallel", 1, 3),
    Sketcher.Constraint("Parallel", 3, 5),
    Sketcher.Constraint("Parallel", 5, 7),
    Sketcher.Constraint("Parallel", 8, 10),
    Sketcher.Constraint("Parallel", 10, 12),
    Sketcher.Constraint("Parallel", 12, 14),
    Sketcher.Constraint("Parallel", 15, 17),
    Sketcher.Constraint("Parallel", 17, 19),
    Sketcher.Constraint("Parallel", 19, 21),
    Sketcher.Constraint("Parallel", 22, 24),
    Sketcher.Constraint("Parallel", 24, 26),
    Sketcher.Constraint("Parallel", 26, 28),
    Sketcher.Constraint("Horizontal", 13, 2, 15, 2),
    Sketcher.Constraint("Horizontal", 12, 2, 16, 2),
    Sketcher.Constraint("Horizontal", 10, 2, 18, 1),
    Sketcher.Constraint("Horizontal", 6, 2, 22, 2),
    Sketcher.Constraint("Horizontal", 5, 2, 23, 2),
    Sketcher.Constraint("Horizontal", 3, 2, 25, 1),
    Sketcher.Constraint("Equal", 3, 5),
    Sketcher.Constraint("Equal", 1, 7),
    Sketcher.Constraint("Equal", 7, 8),
    Sketcher.Constraint("Equal", 5, 10),
    Sketcher.Constraint("Equal", 10, 12),
    Sketcher.Constraint("Equal", 8, 14),
    Sketcher.Constraint("Angle", 1, Q("-18 deg")),
    Sketcher.Constraint("Angle", 8, Q("54 deg")),
    Sketcher.Constraint("DistanceY", 32, 3, -1, 1, 15.0),
    Sketcher.Constraint("DistanceX", 29, 2, 30, 2, 2.4),
    Sketcher.Constraint("Radius", 4, 7.616779),
    Sketcher.Constraint("Radius", 2, 28.321697),
    Sketcher.Constraint("DistanceY", 30, 2, -1, 1, 27.693301),
    Sketcher.Constraint("DistanceY", 3, 2, 4, 3, 4.166501),
    Sketcher.Constraint("DistanceY", 4, 3, 5, 2, 1.7201),
    Sketcher.Constraint("DistanceY", 8, 2, 9, 2, 1.9165),
    Sketcher.Constraint("DistanceY", 4, 1, 10, 2, 2.300298),
    Sketcher.Constraint("DistanceX", 11, 3, 12, 2, 2.661099),
    Sketcher.Constraint("DistanceY", 11, 1, 13, 2, 15.038302),
])
pocket2 = body.newObject("PartDesign::Pocket", "Pocket001")
pocket2.Profile = sketch5
pocket2.Length = 2.5

sketch6 = body.newObject("Sketcher::SketchObject", "Sketch005")
sketch6.AttachmentSupport = (doc.getObject("XZ_Plane"), [""])
sketch6.MapMode = "FlatFace"
sketch6.addGeometry([
    Part.LineSegment(Vector(7, 0, 0), Vector(4, -6, 0)),
    Part.LineSegment(Vector(4, -6, 0), Vector(-4, -6, 0)),
    Part.LineSegment(Vector(-4, -6, 0), Vector(-7, 0, 0)),
    Part.LineSegment(Vector(-7, 0, 0), Vector(-4, 6, 0)),
    Part.LineSegment(Vector(-4, 6, 0), Vector(4, 6, 0)),
    Part.LineSegment(Vector(4, 6, 0), Vector(7, 0, 0)),
], False)
sketch6.addConstraint([
    Sketcher.Constraint("Coincident", 0, 2, 1, 1),
    Sketcher.Constraint("Coincident", 1, 2, 2, 1),
    Sketcher.Constraint("Coincident", 2, 2, 3, 1),
    Sketcher.Constraint("Coincident", 3, 2, 4, 1),
    Sketcher.Constraint("Coincident", 4, 2, 5, 1),
    Sketcher.Constraint("Coincident", 5, 2, 0, 1),
    Sketcher.Constraint("Horizontal", 1),
    Sketcher.Constraint("Horizontal", 4),
    Sketcher.Constraint("Symmetric", 0, 2, 3, 2, -1, 1),
    Sketcher.Constraint("Symmetric", 2, 2, 5, 2, -1, 1),
    Sketcher.Constraint("PointOnObject", 2, 2, -1),
    Sketcher.Constraint("Parallel", 2, 5),
    Sketcher.Constraint("Vertical", 1, 2, 3, 2),
    Sketcher.Constraint("Angle", 0, Q("-120 deg")),
    Sketcher.Constraint("DistanceY", 1, 2, 3, 2, 12.7),
    Sketcher.Constraint("DistanceX", 1, 2, 1, 1, 7.332348),
])
pocket3 = body.newObject("PartDesign::Pocket", "Pocket002")
pocket3.Profile = sketch6
pocket3.Length = 4
pocket3.Reversed = True

sketch7 = body.newObject("Sketcher::SketchObject", "Sketch006")
sketch7.AttachmentSupport = (doc.getObject("XZ_Plane"), [""])
sketch7.MapMode = "FlatFace"
sketch7.AttachmentOffset = App.Placement(Vector(0, 0, 4), App.Rotation())
sketch7.addGeometry(Part.Circle(Vector(0, 0, 0), Vector(0, 0, 1), 2.1), False)
sketch7.addConstraint([
    Sketcher.Constraint("Coincident", 0, 3, -1, 1),
    Sketcher.Constraint("Diameter", 0, 4.2),
])
pocket4 = body.newObject("PartDesign::Pocket", "Pocket003")
pocket4.Profile = sketch7
pocket4.Type = "ThroughAll"
pocket4.Reversed = True

doc.recompute()
